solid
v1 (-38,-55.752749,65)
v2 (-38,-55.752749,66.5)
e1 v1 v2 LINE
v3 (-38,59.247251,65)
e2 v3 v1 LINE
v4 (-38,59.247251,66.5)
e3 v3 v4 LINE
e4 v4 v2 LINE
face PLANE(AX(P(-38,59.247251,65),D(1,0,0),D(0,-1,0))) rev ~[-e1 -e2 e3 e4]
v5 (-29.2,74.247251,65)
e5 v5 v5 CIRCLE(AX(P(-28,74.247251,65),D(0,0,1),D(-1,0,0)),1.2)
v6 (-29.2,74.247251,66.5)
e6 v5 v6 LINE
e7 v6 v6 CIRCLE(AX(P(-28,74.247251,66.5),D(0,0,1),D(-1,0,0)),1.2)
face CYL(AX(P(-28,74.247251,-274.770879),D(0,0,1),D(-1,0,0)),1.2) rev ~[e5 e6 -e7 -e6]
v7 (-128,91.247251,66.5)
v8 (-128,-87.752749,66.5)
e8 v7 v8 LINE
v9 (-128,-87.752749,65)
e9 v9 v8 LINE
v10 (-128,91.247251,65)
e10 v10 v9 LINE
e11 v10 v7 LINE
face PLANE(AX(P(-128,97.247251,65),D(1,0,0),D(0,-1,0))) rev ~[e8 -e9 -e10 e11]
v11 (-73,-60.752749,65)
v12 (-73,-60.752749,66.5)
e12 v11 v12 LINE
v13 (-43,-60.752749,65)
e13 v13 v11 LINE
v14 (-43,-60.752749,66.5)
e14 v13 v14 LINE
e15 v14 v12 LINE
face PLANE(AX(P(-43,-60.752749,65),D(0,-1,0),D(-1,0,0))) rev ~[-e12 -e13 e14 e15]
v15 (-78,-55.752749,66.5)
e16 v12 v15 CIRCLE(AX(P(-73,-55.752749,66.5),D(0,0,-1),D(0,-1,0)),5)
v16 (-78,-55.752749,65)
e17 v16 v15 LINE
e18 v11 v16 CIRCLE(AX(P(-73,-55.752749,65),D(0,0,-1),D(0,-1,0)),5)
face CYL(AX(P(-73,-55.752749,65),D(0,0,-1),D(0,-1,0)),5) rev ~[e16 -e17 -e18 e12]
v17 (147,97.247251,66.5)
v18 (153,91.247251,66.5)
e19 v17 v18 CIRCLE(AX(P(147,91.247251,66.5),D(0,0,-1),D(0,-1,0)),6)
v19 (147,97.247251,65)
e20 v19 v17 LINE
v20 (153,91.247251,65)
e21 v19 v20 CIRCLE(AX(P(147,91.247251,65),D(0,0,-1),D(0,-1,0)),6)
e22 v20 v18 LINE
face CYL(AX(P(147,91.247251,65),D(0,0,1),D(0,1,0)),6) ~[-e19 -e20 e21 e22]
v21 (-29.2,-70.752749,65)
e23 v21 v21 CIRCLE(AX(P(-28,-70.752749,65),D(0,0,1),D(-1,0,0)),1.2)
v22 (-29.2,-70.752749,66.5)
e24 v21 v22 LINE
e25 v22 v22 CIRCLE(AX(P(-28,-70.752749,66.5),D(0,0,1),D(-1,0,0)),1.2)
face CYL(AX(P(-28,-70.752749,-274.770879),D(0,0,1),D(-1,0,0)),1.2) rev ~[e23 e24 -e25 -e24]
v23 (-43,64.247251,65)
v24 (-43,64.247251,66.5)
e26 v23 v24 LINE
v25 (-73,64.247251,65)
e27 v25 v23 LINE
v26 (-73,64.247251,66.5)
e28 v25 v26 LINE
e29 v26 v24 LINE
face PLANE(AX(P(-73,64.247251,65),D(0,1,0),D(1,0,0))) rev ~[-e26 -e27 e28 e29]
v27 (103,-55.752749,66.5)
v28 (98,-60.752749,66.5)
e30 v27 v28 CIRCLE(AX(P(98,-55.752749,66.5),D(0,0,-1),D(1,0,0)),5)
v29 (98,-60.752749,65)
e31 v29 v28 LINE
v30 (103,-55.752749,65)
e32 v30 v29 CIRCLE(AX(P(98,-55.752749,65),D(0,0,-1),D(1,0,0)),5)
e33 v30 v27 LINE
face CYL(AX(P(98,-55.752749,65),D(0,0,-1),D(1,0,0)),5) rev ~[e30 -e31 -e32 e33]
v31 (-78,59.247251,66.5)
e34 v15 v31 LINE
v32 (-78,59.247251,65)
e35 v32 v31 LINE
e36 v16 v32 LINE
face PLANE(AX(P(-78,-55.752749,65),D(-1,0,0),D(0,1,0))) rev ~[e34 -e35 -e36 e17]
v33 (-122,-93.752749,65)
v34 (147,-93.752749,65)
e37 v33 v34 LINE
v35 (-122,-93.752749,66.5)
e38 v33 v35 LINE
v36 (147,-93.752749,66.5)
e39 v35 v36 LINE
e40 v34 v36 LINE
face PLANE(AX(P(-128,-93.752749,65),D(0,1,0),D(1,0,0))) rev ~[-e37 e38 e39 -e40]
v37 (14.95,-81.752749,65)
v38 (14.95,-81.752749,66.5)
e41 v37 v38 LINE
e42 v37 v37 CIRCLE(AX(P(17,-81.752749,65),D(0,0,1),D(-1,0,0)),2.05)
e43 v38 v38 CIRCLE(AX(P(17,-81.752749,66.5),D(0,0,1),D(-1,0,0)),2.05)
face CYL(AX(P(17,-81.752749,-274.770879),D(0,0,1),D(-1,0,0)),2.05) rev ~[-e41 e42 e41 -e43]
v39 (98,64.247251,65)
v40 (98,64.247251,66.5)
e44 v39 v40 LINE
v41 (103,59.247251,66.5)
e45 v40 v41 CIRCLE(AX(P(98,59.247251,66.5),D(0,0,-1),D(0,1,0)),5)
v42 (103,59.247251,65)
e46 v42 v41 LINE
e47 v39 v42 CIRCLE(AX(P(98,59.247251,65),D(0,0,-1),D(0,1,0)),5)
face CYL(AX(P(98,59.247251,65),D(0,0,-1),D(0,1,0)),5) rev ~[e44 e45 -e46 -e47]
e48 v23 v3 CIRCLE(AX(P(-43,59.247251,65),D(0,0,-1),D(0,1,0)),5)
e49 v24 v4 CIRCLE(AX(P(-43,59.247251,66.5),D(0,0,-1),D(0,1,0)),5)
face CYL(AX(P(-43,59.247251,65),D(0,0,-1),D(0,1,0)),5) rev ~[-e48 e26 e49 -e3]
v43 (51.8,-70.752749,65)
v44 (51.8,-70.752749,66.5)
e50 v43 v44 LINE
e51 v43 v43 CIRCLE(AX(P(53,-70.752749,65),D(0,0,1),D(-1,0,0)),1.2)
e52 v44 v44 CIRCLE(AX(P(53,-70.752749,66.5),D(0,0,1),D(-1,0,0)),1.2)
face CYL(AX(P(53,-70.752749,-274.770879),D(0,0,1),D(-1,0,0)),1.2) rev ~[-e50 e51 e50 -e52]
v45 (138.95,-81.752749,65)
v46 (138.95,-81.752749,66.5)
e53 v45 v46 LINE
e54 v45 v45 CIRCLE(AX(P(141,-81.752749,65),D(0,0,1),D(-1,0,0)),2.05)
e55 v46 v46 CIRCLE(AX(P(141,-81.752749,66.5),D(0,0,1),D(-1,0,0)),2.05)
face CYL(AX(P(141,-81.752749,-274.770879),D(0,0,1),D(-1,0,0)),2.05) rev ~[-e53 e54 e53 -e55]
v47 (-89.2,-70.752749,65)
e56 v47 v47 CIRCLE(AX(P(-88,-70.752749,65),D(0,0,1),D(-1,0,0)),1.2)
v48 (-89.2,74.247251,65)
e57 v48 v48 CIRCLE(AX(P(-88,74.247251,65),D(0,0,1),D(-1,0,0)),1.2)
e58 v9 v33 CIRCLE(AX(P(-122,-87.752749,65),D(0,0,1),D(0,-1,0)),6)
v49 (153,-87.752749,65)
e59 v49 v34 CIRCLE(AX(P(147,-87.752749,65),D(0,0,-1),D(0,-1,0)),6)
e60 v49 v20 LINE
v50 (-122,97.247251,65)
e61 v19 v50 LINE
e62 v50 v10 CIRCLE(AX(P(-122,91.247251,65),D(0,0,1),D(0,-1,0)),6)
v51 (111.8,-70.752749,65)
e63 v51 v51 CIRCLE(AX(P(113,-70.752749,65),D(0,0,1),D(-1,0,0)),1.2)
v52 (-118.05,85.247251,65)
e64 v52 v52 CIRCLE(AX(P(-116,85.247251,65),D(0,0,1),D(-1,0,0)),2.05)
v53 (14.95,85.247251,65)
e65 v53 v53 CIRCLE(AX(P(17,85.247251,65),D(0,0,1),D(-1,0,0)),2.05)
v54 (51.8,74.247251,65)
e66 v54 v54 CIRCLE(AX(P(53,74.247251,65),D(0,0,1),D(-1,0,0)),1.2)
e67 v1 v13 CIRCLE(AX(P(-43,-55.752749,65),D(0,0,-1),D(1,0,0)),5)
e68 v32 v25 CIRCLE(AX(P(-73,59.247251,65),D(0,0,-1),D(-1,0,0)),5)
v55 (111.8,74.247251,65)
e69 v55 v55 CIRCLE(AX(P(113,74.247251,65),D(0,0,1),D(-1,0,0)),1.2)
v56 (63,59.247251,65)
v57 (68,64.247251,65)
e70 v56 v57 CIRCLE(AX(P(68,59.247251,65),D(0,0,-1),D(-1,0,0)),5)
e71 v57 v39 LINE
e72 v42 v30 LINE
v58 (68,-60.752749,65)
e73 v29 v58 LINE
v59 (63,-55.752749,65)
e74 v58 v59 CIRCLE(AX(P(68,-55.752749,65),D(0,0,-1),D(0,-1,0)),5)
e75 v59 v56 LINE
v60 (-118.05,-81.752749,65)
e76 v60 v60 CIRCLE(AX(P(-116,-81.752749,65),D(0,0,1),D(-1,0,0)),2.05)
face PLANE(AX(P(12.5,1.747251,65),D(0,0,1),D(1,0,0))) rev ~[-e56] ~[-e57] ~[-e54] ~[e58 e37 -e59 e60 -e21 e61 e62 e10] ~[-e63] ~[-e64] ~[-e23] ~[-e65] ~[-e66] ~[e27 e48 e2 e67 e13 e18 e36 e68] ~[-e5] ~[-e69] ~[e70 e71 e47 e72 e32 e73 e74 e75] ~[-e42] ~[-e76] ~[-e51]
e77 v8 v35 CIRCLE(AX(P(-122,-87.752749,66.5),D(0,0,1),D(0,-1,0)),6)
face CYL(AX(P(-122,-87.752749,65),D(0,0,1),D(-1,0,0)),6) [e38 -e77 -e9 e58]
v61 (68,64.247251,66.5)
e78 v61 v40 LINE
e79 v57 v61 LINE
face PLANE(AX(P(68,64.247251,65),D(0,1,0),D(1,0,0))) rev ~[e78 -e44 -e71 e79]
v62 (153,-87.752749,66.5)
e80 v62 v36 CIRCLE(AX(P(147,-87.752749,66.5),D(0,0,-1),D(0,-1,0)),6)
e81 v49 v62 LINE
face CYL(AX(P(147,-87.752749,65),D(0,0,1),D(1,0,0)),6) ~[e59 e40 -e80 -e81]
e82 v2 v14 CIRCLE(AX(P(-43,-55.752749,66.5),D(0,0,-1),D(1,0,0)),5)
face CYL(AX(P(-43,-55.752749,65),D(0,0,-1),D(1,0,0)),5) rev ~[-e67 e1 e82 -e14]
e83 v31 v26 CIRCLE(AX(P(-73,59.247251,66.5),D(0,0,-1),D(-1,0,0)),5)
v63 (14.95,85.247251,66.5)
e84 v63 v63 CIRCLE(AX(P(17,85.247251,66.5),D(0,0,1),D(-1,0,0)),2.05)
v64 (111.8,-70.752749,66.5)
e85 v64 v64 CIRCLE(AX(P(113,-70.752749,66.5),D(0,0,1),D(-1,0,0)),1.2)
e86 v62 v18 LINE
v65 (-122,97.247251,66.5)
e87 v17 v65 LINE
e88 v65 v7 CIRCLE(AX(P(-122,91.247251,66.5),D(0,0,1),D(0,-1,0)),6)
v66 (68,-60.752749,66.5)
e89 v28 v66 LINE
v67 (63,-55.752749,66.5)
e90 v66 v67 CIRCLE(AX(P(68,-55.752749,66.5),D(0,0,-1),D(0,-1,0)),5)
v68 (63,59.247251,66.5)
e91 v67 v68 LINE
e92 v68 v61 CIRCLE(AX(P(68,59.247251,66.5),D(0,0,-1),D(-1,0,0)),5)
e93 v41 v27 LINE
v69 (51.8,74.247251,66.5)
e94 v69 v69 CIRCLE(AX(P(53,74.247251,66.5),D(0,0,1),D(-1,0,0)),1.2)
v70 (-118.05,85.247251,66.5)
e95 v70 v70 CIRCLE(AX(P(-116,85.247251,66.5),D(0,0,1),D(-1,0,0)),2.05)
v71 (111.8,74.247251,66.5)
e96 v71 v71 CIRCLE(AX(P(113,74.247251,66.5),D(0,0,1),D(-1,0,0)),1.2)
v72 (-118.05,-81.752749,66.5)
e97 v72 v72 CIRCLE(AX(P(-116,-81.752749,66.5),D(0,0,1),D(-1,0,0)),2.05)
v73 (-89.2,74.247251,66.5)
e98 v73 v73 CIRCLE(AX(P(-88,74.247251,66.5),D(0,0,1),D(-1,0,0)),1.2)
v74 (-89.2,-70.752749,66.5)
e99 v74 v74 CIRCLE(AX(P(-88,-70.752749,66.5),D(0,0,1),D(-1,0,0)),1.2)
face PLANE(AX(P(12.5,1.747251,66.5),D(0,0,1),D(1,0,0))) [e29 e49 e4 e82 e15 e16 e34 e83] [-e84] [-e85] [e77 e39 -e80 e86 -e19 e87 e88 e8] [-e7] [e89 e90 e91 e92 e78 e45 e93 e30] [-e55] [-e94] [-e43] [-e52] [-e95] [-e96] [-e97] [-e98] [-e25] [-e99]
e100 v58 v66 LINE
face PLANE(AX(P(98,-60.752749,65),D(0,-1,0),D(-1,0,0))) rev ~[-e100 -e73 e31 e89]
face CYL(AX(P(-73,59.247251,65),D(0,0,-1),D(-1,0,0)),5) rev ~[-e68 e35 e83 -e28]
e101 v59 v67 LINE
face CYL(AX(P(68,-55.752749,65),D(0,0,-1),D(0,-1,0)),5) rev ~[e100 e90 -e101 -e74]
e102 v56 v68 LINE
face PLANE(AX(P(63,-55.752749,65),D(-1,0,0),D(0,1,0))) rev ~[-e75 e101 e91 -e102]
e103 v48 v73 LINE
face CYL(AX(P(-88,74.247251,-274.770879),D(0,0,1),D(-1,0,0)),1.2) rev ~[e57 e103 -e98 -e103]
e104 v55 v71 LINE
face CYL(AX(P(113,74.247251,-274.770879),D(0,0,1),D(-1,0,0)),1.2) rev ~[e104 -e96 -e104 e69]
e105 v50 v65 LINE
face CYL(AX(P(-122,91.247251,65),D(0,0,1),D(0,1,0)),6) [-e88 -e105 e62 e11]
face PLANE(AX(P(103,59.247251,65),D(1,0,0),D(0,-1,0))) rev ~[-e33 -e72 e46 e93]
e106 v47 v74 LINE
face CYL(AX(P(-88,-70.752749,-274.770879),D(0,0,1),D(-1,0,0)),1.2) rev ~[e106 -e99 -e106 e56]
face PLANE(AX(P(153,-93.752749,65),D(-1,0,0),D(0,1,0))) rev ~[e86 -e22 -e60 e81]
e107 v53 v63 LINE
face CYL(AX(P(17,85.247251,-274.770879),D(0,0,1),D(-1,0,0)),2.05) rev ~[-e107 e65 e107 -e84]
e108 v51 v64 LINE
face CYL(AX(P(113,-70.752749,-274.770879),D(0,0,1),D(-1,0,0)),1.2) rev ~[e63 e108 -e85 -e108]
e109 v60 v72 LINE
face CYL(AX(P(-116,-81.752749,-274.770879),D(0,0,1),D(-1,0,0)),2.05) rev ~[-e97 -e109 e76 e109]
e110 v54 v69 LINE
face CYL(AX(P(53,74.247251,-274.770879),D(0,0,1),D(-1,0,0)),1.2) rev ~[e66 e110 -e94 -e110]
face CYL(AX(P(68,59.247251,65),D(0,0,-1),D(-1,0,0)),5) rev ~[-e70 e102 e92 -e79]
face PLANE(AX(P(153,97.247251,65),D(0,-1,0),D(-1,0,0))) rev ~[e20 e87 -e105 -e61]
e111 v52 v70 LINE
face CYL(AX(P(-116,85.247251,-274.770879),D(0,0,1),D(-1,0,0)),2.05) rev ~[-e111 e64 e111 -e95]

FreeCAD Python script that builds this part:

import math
import FreeCAD as App
import Part
import Sketcher

V = App.Vector
Q = App.Units.Quantity


def edges_at(feature, points):
    """Names of the edges that pass closest to the given points."""
    edges = feature.Shape.Edges
    near = lambda p: min(range(len(edges)), key=lambda i: edges[i].distToShape(Part.Vertex(*p))[0])
    return sorted({f"Edge{near(p) + 1}" for p in points})

doc = App.newDocument("Part")
body = doc.addObject("PartDesign::Body", "Body")

# Sketch on XY plane
sketch1 = doc.addObject("Sketcher::SketchObject", "Sketch")
body.addObject(sketch1)
sketch1.AttachmentSupport = (doc.XY_Plane, [""])
sketch1.MapMode = "FlatFace"
sketch1.addGeometry([
    Part.LineSegment(V(155, 99.247251, 0), V(-126, 99.247251, 0)),  # 0
    Part.LineSegment(V(-126, 99.247251, 0), V(-126, -91.752749, 0)),  # 1
    Part.LineSegment(V(-126, -91.752749, 0), V(155, -91.752749, 0)),  # 2
    Part.LineSegment(V(155, -91.752749, 0), V(155, 99.247251, 0)),  # 3
    Part.LineSegment(V(-76, -53.752749, 0), V(-76, 61.247251, 0)),  # 4
    Part.ArcOfCircle(Part.Circle(V(-71, 61.247251, 0), V(0, 0, 1), 5), math.radians(90), math.radians(180)),  # 5
    Part.LineSegment(V(-71, 66.247251, 0), V(-41, 66.247251, 0)),  # 6
    Part.ArcOfCircle(Part.Circle(V(-41, 61.247251, 0), V(0, 0, 1), 5), math.radians(0), math.radians(90)),  # 7
    Part.LineSegment(V(-36, 61.247251, 0), V(-36, -53.752749, 0)),  # 8
    Part.ArcOfCircle(Part.Circle(V(-41, -53.752749, 0), V(0, 0, 1), 5), math.radians(-90), math.radians(0)),  # 9
    Part.LineSegment(V(-41, -58.752749, 0), V(-71, -58.752749, 0)),  # 10
    Part.ArcOfCircle(Part.Circle(V(-71, -53.752749, 0), V(0, 0, 1), 5), math.radians(180), math.radians(270)),  # 11
    Part.ArcOfCircle(Part.Circle(V(100, 61.247251, 0), V(0, 0, 1), 5), math.radians(0), math.radians(90)),  # 12
    Part.LineSegment(V(105, 61.247251, 0), V(105, -53.752749, 0)),  # 13
    Part.ArcOfCircle(Part.Circle(V(100, -53.752749, 0), V(0, 0, 1), 5), math.radians(-90), math.radians(0)),  # 14
    Part.LineSegment(V(100, -58.752749, 0), V(70, -58.752749, 0)),  # 15
    Part.ArcOfCircle(Part.Circle(V(70, -53.752749, 0), V(0, 0, 1), 5), math.radians(180), math.radians(270)),  # 16
    Part.LineSegment(V(65, -53.752749, 0), V(65, 61.247251, 0)),  # 17
    Part.ArcOfCircle(Part.Circle(V(70, 61.247251, 0), V(0, 0, 1), 5), math.radians(90), math.radians(180)),  # 18
    Part.LineSegment(V(70, 66.247251, 0), V(100, 66.247251, 0)),  # 19
], False)
sketch1.addConstraint([
    Sketcher.Constraint("Coincident", 0, 2, 1, 1),
    Sketcher.Constraint("Coincident", 1, 2, 2, 1),
    Sketcher.Constraint("Coincident", 2, 2, 3, 1),
    Sketcher.Constraint("Coincident", 3, 2, 0, 1),
    Sketcher.Constraint("Tangent", 4, 2, 5, 2),
    Sketcher.Constraint("Tangent", 5, 1, 6, 1),
    Sketcher.Constraint("Tangent", 6, 2, 7, 2),
    Sketcher.Constraint("Tangent", 7, 1, 8, 1),
    Sketcher.Constraint("Tangent", 8, 2, 9, 2),
    Sketcher.Constraint("Tangent", 9, 1, 10, 1),
    Sketcher.Constraint("Tangent", 10, 2, 11, 2),
    Sketcher.Constraint("Tangent", 11, 1, 4, 1),
    Sketcher.Constraint("Tangent", 12, 1, 13, 1),
    Sketcher.Constraint("Tangent", 13, 2, 14, 2),
    Sketcher.Constraint("Tangent", 14, 1, 15, 1),
    Sketcher.Constraint("Tangent", 15, 2, 16, 2),
    Sketcher.Constraint("Tangent", 16, 1, 17, 1),
    Sketcher.Constraint("Tangent", 17, 2, 18, 2),
    Sketcher.Constraint("Tangent", 18, 1, 19, 1),
    Sketcher.Constraint("Tangent", 19, 2, 12, 2),
    Sketcher.Constraint("Horizontal", 0),
    Sketcher.Constraint("Vertical", 1),
    Sketcher.Constraint("Horizontal", 2),
    Sketcher.Constraint("Vertical", 3),
    Sketcher.Constraint("Vertical", 4),
    Sketcher.Constraint("Horizontal", 6),
    Sketcher.Constraint("Vertical", 8),
    Sketcher.Constraint("Horizontal", 10),
    Sketcher.Constraint("Vertical", 13),
    Sketcher.Constraint("Horizontal", 15),
    Sketcher.Constraint("Vertical", 17),
    Sketcher.Constraint("Horizontal", 19),
    Sketcher.Constraint("Equal", 5, 7),
    Sketcher.Constraint("Equal", 7, 9),
    Sketcher.Constraint("Equal", 9, 11),
    Sketcher.Constraint("Equal", 11, 12),
    Sketcher.Constraint("Equal", 12, 14),
    Sketcher.Constraint("Equal", 14, 16),
    Sketcher.Constraint("Equal", 16, 18),
    Sketcher.Constraint("Horizontal", 7, 3, 12, 3),
    Sketcher.Constraint("Horizontal", 11, 3, 14, 3),
    Sketcher.Constraint("Equal", 10, 15),
    Sketcher.Constraint("Radius", 5, Q("5 mm")),
    Sketcher.Constraint("DistanceX", 0, 2, 0, 1, Q("281 mm")),
    Sketcher.Constraint("DistanceX", 6, 1, 6, 2, Q("30 mm")),
    Sketcher.Constraint("DistanceY", 1, 2, 1, 1, Q("191 mm")),
    Sketcher.Constraint("DistanceY", 4, 1, 4, 2, Q("115 mm")),
    Sketcher.Constraint("DistanceX", 5, 3, -1, 1, Q("71 mm")),
    Sketcher.Constraint("DistanceX", -1, 1, 12, 3, Q("100 mm")),
    Sketcher.Constraint("DistanceX", 0, 2, -1, 1, Q("126 mm")),
    Sketcher.Constraint("DistanceY", 5, 3, 0, 2, Q("38 mm")),
    Sketcher.Constraint("DistanceY", -1, 1, 5, 3, Q("61.247251 mm")),
])
pad1 = doc.addObject("PartDesign::Pad", "Pad")
body.addObject(pad1)
pad1.Profile = sketch1
pad1.Length = 1.5

# Sketch on XY plane
sketch2 = doc.addObject("Sketcher::SketchObject", "Sketch001")
body.addObject(sketch2)
sketch2.AttachmentSupport = (doc.XY_Plane, [""])
sketch2.MapMode = "FlatFace"
sketch2.addGeometry([
    Part.Circle(V(-114, 87.247251, 0), V(0, 0, 1), 2.05),  # 0
    Part.Circle(V(19, 87.247251, 0), V(0, 0, 1), 2.05),  # 1
    Part.Circle(V(143, -79.752749, 0), V(0, 0, 1), 2.05),  # 2
    Part.Circle(V(-114, -79.752749, 0), V(0, 0, 1), 2.05),  # 3
    Part.Circle(V(19, -79.752749, 0), V(0, 0, 1), 2.05),  # 4
], False)
sketch2.addConstraint([
    Sketcher.Constraint("Equal", 0, 1),
    Sketcher.Constraint("Equal", 1, 2),
    Sketcher.Constraint("Equal", 2, 3),
    Sketcher.Constraint("Equal", 3, 4),
    Sketcher.Constraint("Horizontal", 0, 3, 1, 3),
    Sketcher.Constraint("Horizontal", 2, 3, 3, 3),
    Sketcher.Constraint("Horizontal", 3, 3, 4, 3),
    Sketcher.Constraint("Vertical", 0, 3, 3, 3),
    Sketcher.Constraint("Vertical", 1, 3, 4, 3),
    Sketcher.Constraint("Diameter", 0, Q("4.1 mm")),
    Sketcher.Constraint("DistanceX", 0, 3, -1, 1, Q("114 mm")),
    Sketcher.Constraint("DistanceX", -1, 1, 1, 3, Q("19 mm")),
    Sketcher.Constraint("DistanceX", -1, 1, 2, 3, Q("143 mm")),
    Sketcher.Constraint("DistanceY", 2, 3, 1, 3, Q("167 mm")),
    Sketcher.Constraint("DistanceY", -1, 1, 0, 3, Q("87.247251 mm")),
])
doc.recompute()
hole = doc.addObject("PartDesign::Hole", "Hole")
body.addObject(hole)
hole.Profile = sketch2
hole.ThreadType = "None"
hole.Diameter = 4.1
hole.DepthType = "ThroughAll"
hole.Reversed = True
doc.recompute()

fillet = doc.addObject("PartDesign::Fillet", "Fillet")
body.addObject(fillet)
fillet.Base = (hole, edges_at(hole, [
    (-126, 99.247, 0.75),
    (-126, -91.753, 0.75),
    (155, -91.753, 0.75),
    (155, 99.247, 0.75),
]))
fillet.Radius = 6

# Sketch on XY plane
sketch3 = doc.addObject("Sketcher::SketchObject", "Sketch002")
body.addObject(sketch3)
sketch3.AttachmentSupport = (doc.XY_Plane, [""])
sketch3.MapMode = "FlatFace"
sketch3.addGeometry([
    Part.Circle(V(-26, 76.247251, 0), V(0, 0, 1), 1.2),  # 0
    Part.Circle(V(-86, 76.247251, 0), V(0, 0, 1), 1.2),  # 1
    Part.Circle(V(-26, -68.752749, 0), V(0, 0, 1), 1.2),  # 2
    Part.Circle(V(-86, -68.752749, 0), V(0, 0, 1), 1.2),  # 3
    Part.Circle(V(55, 76.247251, 0), V(0, 0, 1), 1.2),  # 4
    Part.Circle(V(115, 76.247251, 0), V(0, 0, 1), 1.2),  # 5
    Part.Circle(V(115, -68.752749, 0), V(0, 0, 1), 1.2),  # 6
    Part.Circle(V(55, -68.752749, 0), V(0, 0, 1), 1.2),  # 7
], False)
sketch3.addConstraint([
    Sketcher.Constraint("Equal", 0, 1),
    Sketcher.Constraint("Equal", 1, 2),
    Sketcher.Constraint("Equal", 2, 3),
    Sketcher.Constraint("Equal", 3, 4),
    Sketcher.Constraint("Equal", 4, 5),
    Sketcher.Constraint("Equal", 5, 6),
    Sketcher.Constraint("Equal", 6, 7),
    Sketcher.Constraint("Horizontal", 0, 3, 1, 3),
    Sketcher.Constraint("Horizontal", 2, 3, 3, 3),
    Sketcher.Constraint("Horizontal", 1, 3, 4, 3),
    Sketcher.Constraint("Horizontal", 4, 3, 5, 3),
    Sketcher.Constraint("Horizontal", 3, 3, 6, 3),
    Sketcher.Constraint("Horizontal", 6, 3, 7, 3),
    Sketcher.Constraint("Vertical", 0, 3, 2, 3),
    Sketcher.Constraint("Vertical", 1, 3, 3, 3),
    Sketcher.Constraint("Vertical", 5, 3, 6, 3),
    Sketcher.Constraint("Vertical", 4, 3, 7, 3),
    Sketcher.Constraint("Diameter", 0, Q("2.4 mm")),
    Sketcher.Constraint("DistanceX", 0, 3, -1, 1, Q("26 mm")),
    Sketcher.Constraint("DistanceX", 1, 3, -1, 1, Q("86 mm")),
    Sketcher.Constraint("DistanceX", -1, 1, 4, 3, Q("55 mm")),
    Sketcher.Constraint("DistanceX", -1, 1, 5, 3, Q("115 mm")),
    Sketcher.Constraint("DistanceY", 2, 3, 0, 3, Q("145 mm")),
    Sketcher.Constraint("DistanceY", -1, 1, 0, 3, Q("76.247251 mm")),
])
doc.recompute()
hole2 = doc.addObject("PartDesign::Hole", "Hole001")
body.addObject(hole2)
hole2.Profile = sketch3
hole2.ThreadType = "None"
hole2.Diameter = 2.4
hole2.DepthType = "ThroughAll"
hole2.Reversed = True
body2 = doc.addObject("PartDesign::Body", "Body001")
doc.recompute()

body.Placement = App.Placement(V(0, 0, 65), App.Rotation(V(0, 0, 1), 0))
boolean = doc.addObject("PartDesign::Boolean", "Boolean")
body2.addObject(boolean)
boolean.Type = "Fuse"
boolean.addObjects([body])
body3 = doc.addObject("PartDesign::Body", "Body002")
doc.recompute()

body2.Placement = App.Placement(V(-2, -2, 0), App.Rotation(V(0, 0, 1), 0))
boolean2 = doc.addObject("PartDesign::Boolean", "Boolean001")
body3.addObject(boolean2)
boolean2.Type = "Fuse"
boolean2.addObjects([body2])

doc.recompute()
